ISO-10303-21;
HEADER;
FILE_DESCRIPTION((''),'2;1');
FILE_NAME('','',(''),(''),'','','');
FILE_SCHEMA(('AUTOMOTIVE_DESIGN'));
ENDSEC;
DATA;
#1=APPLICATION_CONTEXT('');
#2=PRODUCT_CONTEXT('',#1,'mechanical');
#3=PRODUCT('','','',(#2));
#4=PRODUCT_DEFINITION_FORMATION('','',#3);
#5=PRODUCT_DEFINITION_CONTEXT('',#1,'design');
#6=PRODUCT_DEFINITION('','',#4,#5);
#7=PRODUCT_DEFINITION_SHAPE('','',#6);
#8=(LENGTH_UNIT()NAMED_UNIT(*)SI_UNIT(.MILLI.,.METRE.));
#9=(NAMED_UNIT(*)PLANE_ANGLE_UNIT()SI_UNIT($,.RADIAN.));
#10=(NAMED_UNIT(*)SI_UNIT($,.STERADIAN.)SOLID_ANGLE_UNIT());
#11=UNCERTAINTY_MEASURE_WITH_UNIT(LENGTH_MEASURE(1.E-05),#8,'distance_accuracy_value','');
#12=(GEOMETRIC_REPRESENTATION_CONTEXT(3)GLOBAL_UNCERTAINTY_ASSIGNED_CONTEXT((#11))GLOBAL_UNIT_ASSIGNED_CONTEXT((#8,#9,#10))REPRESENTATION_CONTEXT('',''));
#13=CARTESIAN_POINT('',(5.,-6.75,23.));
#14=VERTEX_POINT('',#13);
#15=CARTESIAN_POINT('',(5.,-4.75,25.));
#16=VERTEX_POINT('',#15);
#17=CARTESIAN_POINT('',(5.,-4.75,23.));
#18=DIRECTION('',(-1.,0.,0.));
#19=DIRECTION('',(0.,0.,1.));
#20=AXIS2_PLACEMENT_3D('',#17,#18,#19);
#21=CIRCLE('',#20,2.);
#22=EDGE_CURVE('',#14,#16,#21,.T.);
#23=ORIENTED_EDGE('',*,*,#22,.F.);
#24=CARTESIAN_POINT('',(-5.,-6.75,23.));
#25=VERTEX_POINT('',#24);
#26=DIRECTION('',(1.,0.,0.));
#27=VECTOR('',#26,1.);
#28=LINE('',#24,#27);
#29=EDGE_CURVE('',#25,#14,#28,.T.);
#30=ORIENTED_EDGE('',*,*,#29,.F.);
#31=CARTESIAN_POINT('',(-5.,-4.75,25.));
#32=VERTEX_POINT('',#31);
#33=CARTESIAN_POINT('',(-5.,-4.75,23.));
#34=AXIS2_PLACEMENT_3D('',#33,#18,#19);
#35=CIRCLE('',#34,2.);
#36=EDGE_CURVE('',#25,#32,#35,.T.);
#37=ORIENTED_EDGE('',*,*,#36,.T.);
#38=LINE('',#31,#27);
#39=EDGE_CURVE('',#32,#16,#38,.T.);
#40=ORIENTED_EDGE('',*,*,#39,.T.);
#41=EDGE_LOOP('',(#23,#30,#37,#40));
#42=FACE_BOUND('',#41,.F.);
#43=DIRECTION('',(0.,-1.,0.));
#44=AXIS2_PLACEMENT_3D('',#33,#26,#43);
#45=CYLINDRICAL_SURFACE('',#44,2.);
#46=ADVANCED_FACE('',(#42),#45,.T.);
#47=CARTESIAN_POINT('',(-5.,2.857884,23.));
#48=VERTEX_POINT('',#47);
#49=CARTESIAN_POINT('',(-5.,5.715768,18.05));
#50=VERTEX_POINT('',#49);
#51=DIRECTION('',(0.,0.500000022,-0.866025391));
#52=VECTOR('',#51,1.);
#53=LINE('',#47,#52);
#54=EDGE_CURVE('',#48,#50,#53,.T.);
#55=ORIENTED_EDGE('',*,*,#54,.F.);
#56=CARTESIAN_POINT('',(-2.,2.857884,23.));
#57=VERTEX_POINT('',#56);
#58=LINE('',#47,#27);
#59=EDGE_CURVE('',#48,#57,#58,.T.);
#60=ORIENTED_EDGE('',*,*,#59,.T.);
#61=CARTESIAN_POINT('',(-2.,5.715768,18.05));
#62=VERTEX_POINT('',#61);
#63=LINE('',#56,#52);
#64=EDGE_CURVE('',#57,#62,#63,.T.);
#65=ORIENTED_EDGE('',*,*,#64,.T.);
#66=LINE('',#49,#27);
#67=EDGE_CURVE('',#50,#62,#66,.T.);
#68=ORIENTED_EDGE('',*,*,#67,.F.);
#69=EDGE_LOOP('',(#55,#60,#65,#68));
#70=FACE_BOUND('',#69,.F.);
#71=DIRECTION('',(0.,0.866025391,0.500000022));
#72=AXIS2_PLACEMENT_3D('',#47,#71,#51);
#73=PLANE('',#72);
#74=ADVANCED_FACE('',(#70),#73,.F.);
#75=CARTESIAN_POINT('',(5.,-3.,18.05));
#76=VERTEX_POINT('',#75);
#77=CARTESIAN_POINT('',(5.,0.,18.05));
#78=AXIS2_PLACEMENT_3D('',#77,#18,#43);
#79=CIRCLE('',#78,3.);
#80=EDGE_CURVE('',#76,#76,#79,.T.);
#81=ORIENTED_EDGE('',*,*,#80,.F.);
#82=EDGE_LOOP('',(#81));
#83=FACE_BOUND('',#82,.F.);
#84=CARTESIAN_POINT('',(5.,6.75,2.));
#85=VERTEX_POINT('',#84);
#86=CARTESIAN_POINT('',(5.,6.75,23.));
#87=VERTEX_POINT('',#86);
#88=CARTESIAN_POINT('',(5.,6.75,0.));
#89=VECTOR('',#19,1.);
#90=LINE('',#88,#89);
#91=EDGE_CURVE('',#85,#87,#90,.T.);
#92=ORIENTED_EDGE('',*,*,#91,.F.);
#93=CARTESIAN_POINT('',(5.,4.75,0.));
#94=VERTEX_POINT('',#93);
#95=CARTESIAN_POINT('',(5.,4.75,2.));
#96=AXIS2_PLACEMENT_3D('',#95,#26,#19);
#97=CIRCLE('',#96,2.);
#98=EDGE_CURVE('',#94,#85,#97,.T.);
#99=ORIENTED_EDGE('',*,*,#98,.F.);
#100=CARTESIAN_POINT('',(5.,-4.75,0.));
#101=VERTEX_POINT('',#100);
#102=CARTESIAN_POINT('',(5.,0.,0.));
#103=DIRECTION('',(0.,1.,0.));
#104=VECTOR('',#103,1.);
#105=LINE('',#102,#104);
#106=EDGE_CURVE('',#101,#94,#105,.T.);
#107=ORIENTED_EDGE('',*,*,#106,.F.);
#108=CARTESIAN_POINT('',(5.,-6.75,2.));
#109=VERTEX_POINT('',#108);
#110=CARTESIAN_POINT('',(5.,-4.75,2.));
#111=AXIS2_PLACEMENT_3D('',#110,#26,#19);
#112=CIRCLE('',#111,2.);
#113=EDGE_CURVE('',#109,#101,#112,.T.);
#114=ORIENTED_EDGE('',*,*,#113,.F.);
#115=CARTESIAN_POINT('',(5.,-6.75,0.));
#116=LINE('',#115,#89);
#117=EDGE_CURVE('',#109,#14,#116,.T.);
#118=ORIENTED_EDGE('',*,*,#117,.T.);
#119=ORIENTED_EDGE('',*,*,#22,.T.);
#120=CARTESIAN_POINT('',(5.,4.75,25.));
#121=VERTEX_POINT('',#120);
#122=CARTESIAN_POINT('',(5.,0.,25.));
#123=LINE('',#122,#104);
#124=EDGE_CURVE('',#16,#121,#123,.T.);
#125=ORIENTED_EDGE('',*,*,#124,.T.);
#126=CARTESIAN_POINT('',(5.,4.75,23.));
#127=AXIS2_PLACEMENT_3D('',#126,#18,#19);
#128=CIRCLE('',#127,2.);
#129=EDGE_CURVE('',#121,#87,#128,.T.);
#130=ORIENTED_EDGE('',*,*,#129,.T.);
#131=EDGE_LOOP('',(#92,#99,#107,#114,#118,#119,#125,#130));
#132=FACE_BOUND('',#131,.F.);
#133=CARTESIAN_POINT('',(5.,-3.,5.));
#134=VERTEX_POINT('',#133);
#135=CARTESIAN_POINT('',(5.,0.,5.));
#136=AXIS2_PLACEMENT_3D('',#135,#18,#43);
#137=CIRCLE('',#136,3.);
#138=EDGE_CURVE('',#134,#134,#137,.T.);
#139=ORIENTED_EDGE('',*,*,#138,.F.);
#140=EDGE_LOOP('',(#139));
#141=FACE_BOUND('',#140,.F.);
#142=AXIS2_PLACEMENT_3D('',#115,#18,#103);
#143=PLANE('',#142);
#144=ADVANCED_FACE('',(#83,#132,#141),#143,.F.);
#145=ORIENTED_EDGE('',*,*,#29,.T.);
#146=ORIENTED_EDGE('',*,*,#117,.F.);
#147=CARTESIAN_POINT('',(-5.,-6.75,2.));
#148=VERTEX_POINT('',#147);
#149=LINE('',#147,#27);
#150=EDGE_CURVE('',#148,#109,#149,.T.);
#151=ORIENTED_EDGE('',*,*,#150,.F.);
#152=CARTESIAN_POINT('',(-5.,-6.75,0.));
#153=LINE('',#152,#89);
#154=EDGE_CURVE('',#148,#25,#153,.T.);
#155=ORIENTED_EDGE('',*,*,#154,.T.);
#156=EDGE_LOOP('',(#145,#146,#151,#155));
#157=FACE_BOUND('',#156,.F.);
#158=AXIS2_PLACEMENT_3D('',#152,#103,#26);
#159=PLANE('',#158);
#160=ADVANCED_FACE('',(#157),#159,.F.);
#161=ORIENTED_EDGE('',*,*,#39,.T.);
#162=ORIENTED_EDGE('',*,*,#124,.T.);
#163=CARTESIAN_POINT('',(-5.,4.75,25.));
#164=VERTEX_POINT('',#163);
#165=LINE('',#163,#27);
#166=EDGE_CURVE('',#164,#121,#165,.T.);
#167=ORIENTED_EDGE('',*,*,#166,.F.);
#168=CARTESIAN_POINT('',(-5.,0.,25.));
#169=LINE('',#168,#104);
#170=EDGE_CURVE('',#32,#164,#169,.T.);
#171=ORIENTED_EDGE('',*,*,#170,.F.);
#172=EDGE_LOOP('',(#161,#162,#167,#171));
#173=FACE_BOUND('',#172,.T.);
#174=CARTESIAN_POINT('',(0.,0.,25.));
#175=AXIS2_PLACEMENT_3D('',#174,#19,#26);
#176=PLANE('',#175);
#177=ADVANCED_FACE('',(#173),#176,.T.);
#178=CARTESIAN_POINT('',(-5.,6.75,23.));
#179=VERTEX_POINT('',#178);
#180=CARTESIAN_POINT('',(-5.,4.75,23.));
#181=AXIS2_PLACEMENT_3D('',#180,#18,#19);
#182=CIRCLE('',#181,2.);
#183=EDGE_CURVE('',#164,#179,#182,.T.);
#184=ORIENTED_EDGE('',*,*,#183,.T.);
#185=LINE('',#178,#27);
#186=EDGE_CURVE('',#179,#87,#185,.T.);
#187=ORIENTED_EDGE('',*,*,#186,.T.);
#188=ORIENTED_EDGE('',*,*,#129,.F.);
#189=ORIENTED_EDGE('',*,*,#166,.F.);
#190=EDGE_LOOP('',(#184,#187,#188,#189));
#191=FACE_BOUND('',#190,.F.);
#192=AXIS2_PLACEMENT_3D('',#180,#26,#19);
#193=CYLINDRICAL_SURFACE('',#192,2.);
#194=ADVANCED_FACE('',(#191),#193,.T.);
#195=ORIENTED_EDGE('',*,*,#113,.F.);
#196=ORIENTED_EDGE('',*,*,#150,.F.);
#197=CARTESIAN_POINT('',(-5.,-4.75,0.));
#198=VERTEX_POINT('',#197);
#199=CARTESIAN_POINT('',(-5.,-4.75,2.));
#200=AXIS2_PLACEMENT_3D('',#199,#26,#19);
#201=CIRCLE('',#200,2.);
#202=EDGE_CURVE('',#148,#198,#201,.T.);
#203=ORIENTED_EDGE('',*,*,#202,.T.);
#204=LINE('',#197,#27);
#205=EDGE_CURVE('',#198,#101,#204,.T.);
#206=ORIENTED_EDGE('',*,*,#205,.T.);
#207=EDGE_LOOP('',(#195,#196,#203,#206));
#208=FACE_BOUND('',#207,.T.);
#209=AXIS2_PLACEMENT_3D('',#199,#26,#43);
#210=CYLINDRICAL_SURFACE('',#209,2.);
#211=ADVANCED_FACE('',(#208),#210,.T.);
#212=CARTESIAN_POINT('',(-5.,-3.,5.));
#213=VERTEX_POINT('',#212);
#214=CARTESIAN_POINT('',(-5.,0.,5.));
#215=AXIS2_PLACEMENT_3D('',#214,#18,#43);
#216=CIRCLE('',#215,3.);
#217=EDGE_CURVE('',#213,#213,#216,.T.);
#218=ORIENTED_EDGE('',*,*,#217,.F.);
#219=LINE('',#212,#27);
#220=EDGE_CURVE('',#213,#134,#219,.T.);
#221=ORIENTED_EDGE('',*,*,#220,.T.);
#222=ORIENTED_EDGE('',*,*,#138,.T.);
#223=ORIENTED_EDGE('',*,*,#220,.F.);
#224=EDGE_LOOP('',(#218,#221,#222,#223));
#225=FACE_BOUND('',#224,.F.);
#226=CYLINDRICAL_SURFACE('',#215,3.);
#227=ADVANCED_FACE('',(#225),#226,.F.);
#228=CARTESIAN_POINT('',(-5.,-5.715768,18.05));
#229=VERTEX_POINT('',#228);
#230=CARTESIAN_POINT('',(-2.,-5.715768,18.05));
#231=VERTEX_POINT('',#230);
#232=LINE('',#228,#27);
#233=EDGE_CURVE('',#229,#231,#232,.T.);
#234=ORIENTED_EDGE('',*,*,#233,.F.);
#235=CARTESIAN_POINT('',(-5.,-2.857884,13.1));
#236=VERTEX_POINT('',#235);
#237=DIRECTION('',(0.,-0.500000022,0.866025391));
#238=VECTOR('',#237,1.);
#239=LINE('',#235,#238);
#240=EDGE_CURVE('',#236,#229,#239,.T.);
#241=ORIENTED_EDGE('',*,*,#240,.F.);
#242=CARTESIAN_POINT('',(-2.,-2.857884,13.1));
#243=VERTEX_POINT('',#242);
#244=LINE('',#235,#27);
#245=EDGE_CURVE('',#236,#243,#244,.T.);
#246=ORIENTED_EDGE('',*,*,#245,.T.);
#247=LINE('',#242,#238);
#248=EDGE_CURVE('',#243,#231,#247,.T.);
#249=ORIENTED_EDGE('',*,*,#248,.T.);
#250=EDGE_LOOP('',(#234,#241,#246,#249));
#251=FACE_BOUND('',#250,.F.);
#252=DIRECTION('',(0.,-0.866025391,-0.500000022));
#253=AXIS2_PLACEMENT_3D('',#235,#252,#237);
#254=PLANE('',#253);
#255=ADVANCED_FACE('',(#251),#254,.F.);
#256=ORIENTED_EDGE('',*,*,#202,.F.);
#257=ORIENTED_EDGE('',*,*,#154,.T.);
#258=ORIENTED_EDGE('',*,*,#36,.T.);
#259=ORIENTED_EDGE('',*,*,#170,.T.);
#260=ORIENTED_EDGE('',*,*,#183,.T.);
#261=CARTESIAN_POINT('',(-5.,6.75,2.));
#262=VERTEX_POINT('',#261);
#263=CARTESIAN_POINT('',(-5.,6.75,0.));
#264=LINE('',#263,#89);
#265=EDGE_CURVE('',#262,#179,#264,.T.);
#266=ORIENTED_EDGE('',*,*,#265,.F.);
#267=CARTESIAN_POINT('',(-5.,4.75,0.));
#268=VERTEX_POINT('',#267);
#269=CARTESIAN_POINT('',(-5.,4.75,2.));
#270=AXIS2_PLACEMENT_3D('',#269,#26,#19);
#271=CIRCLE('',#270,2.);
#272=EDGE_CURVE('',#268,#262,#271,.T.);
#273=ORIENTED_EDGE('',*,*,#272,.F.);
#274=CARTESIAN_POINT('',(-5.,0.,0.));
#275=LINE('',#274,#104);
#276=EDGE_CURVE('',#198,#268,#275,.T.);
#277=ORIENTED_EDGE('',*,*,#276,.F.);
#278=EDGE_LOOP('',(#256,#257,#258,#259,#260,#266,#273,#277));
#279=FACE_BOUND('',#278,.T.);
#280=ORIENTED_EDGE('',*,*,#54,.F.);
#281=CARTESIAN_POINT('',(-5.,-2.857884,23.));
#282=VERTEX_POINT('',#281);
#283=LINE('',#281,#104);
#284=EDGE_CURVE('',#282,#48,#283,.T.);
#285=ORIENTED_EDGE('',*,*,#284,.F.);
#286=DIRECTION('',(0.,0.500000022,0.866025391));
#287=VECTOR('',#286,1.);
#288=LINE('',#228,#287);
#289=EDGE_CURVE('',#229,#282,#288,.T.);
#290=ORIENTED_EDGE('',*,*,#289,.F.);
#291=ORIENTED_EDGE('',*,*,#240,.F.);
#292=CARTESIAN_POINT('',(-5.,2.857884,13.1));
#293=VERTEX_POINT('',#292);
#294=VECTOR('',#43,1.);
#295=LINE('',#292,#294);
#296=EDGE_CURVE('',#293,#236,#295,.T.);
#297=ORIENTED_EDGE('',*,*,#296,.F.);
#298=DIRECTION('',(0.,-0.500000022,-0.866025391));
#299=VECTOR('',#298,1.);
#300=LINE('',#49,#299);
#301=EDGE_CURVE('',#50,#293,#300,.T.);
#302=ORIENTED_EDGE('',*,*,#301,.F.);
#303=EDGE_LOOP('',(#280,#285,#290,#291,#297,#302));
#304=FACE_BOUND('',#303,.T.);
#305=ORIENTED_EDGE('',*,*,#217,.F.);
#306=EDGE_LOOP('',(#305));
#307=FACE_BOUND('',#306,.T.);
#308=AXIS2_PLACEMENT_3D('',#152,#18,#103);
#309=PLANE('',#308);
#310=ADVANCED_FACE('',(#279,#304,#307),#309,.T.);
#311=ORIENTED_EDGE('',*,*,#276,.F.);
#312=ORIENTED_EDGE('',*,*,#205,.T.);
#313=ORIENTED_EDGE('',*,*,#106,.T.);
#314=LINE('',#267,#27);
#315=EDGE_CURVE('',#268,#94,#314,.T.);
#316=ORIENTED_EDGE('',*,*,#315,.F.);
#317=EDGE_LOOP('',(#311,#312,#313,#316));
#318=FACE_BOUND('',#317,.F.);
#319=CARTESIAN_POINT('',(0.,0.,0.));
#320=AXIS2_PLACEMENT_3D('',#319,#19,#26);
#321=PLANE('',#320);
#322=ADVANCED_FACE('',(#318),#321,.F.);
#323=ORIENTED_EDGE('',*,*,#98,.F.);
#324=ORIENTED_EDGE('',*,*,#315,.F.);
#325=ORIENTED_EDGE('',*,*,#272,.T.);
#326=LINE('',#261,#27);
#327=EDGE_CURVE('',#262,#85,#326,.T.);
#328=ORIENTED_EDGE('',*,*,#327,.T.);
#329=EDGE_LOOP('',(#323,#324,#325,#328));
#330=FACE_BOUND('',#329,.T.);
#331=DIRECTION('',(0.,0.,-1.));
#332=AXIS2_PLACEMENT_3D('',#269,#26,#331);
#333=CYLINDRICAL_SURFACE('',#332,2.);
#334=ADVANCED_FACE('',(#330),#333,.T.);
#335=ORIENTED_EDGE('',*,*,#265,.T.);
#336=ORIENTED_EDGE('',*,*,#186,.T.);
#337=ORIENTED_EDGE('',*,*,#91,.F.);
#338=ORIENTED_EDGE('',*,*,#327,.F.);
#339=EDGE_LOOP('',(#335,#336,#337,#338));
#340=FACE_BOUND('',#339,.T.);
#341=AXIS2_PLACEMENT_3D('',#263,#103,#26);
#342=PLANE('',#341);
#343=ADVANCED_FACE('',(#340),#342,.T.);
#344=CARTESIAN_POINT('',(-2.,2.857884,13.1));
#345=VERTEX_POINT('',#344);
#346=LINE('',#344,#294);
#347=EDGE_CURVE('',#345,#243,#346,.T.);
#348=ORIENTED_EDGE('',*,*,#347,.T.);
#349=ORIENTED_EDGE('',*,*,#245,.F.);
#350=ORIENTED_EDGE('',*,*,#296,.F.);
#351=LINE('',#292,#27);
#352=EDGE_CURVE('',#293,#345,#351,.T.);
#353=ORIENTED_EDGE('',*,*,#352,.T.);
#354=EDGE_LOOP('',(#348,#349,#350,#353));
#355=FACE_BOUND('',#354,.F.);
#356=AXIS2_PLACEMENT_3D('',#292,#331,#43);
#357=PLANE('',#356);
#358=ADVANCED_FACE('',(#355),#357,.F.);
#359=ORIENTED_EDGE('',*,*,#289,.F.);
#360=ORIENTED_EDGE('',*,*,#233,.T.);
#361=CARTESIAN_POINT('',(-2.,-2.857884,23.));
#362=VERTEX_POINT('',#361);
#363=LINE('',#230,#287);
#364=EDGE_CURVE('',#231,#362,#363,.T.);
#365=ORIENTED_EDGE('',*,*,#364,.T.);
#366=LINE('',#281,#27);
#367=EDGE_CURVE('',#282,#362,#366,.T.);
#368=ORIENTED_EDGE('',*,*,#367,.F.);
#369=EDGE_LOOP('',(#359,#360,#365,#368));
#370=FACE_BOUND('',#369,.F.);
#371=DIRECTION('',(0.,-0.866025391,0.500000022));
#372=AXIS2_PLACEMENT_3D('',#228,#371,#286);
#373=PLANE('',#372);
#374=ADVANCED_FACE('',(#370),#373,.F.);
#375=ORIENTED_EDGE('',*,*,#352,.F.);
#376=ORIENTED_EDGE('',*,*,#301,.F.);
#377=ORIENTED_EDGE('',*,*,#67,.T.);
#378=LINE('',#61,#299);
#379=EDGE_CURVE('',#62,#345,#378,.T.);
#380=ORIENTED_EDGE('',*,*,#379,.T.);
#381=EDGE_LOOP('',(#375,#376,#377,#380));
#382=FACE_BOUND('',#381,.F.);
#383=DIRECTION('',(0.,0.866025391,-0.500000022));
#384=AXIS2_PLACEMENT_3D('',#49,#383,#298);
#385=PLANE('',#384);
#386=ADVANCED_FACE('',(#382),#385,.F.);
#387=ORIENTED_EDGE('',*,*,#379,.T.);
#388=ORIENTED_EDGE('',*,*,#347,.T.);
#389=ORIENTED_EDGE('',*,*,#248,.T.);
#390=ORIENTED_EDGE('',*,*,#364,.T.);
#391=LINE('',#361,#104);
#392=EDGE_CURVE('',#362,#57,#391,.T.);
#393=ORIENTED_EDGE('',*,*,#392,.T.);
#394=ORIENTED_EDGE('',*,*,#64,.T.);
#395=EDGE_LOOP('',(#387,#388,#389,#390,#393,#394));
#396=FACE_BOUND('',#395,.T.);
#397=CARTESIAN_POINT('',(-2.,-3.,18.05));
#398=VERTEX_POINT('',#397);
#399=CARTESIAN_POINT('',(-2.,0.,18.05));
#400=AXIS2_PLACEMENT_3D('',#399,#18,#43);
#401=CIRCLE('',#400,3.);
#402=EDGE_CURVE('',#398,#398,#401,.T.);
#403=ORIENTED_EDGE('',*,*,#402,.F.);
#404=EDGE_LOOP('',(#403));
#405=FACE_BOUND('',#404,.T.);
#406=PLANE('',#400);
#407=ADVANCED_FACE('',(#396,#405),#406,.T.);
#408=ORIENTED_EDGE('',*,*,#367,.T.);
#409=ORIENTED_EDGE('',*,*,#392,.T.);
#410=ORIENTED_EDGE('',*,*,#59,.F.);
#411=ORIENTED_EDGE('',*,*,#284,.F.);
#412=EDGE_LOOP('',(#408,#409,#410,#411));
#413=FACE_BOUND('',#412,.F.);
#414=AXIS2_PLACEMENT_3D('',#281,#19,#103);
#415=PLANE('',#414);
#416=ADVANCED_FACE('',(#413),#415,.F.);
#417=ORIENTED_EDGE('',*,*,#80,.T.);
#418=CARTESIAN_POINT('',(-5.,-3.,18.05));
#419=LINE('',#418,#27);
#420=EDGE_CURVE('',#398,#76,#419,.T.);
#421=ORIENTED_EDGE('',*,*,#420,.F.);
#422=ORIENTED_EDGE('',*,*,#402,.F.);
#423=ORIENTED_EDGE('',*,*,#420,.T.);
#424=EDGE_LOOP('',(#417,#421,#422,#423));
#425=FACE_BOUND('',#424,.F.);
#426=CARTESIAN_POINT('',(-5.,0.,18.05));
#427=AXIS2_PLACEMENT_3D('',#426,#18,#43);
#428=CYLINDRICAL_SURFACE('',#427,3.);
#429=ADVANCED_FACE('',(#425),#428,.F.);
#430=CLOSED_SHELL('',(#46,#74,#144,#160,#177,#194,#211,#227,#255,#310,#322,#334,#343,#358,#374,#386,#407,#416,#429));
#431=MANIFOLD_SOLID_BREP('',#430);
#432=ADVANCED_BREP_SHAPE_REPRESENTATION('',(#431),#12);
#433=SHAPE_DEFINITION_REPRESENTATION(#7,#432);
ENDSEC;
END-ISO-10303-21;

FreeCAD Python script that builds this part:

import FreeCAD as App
import Part
import Sketcher

V = App.Vector
Q = App.Units.Quantity


def edges_at(feature, points):
    """Names of the edges that pass closest to the given points."""
    edges = feature.Shape.Edges
    near = lambda p: min(range(len(edges)), key=lambda i: edges[i].distToShape(Part.Vertex(*p))[0])
    return sorted({f"Edge{near(p) + 1}" for p in points})

doc = App.newDocument("Part")
body = doc.addObject("PartDesign::Body", "Body")

# Sketch on XY plane
sketch1 = body.newObject("Sketcher::SketchObject", "Sketch")
sketch1.AttachmentSupport = (doc.getObject("XY_Plane"), [""])
sketch1.MapMode = "FlatFace"
sketch1.addGeometry(Part.LineSegment(V(-5, 7, 0), V(-5, -7, 0)), False)
sketch1.addGeometry(Part.LineSegment(V(-5, -7, 0), V(5, -7, 0)), False)
sketch1.addGeometry(Part.LineSegment(V(5, -7, 0), V(5, 7, 0)), False)
sketch1.addGeometry(Part.LineSegment(V(5, 7, 0), V(-5, 7, 0)), False)
sketch1.addConstraint(Sketcher.Constraint("Coincident", 0, 2, 1, 1))
sketch1.addConstraint(Sketcher.Constraint("Coincident", 1, 2, 2, 1))
sketch1.addConstraint(Sketcher.Constraint("Coincident", 2, 2, 3, 1))
sketch1.addConstraint(Sketcher.Constraint("Coincident", 3, 2, 0, 1))
sketch1.addConstraint(Sketcher.Constraint("Vertical", 0))
sketch1.addConstraint(Sketcher.Constraint("Horizontal", 1))
sketch1.addConstraint(Sketcher.Constraint("Vertical", 2))
sketch1.addConstraint(Sketcher.Constraint("Horizontal", 3))
sketch1.addConstraint(Sketcher.Constraint("Symmetric", 0, 2, 2, 2, -1, 1))
sketch1.addConstraint(Sketcher.Constraint("DistanceX", 1, 1, 1, 2, 10.0))
sketch1.addConstraint(Sketcher.Constraint("DistanceY", 0, 2, 0, 1, 13.5))
pad1 = body.newObject("PartDesign::Pad", "Pad")
pad1.Profile = sketch1
pad1.Length = 25

# Sketch on YZ plane
sketch2 = body.newObject("Sketcher::SketchObject", "Sketch001")
sketch2.AttachmentSupport = (doc.getObject("YZ_Plane"), [""])
sketch2.MapMode = "FlatFace"
sketch2.AttachmentOffset = App.Placement(V(0, 0, -5), App.Rotation())
sketch2.addGeometry(Part.LineSegment(V(-2.9, 23, 0), V(2.9, 23, 0)), False)
sketch2.addGeometry(Part.LineSegment(V(2.9, 23, 0), V(5.7, 18.1, 0)), False)
sketch2.addGeometry(Part.LineSegment(V(5.7, 18.1, 0), V(2.9, 13.1, 0)), False)
sketch2.addGeometry(Part.LineSegment(V(2.9, 13.1, 0), V(-2.9, 13.1, 0)), False)
sketch2.addGeometry(Part.LineSegment(V(-2.9, 13.1, 0), V(-5.7, 18.1, 0)), False)
sketch2.addGeometry(Part.LineSegment(V(-5.7, 18.1, 0), V(-2.9, 23, 0)), False)
sketch2.addGeometry(Part.Circle(V(0, 18.1, 0), V(0, 0, 1), 3), False)
sketch2.addConstraint(Sketcher.Constraint("Coincident", 0, 2, 1, 1))
sketch2.addConstraint(Sketcher.Constraint("Coincident", 1, 2, 2, 1))
sketch2.addConstraint(Sketcher.Constraint("Coincident", 2, 2, 3, 1))
sketch2.addConstraint(Sketcher.Constraint("Coincident", 3, 2, 4, 1))
sketch2.addConstraint(Sketcher.Constraint("Coincident", 4, 2, 5, 1))
sketch2.addConstraint(Sketcher.Constraint("Coincident", 5, 2, 0, 1))
sketch2.addConstraint(Sketcher.Constraint("Horizontal", 0))
sketch2.addConstraint(Sketcher.Constraint("Horizontal", 3))
sketch2.addConstraint(Sketcher.Constraint("Symmetric", 1, 2, 4, 2, -2))
sketch2.addConstraint(Sketcher.Constraint("PointOnObject", 6, 3, -2))
sketch2.addConstraint(Sketcher.Constraint("Parallel", 1, 4))
sketch2.addConstraint(Sketcher.Constraint("Parallel", 2, 5))
sketch2.addConstraint(Sketcher.Constraint("Horizontal", 6, 3, 1, 2))
sketch2.addConstraint(Sketcher.Constraint("Vertical", 0, 2, 2, 2))
sketch2.addConstraint(Sketcher.Constraint("Vertical", 3, 2, 5, 2))
sketch2.addConstraint(Sketcher.Constraint("Diameter", 6, 6.0))
sketch2.addConstraint(Sketcher.Constraint("Angle", 1, Q("-59.999999 deg")))
sketch2.addConstraint(Sketcher.Constraint("DistanceY", -1, 1, 0, 2, 23.0))
sketch2.addConstraint(Sketcher.Constraint("DistanceY", -1, 1, 2, 2, 13.1))
sketch2.addConstraint(Sketcher.Constraint("DistanceX", 0, 1, 0, 2, 5.715768))
pocket1 = body.newObject("PartDesign::Pocket", "Pocket")
pocket1.Profile = sketch2
pocket1.Length = 3
pocket1.Reversed = True

# Sketch on YZ plane
sketch3 = body.newObject("Sketcher::SketchObject", "Sketch002")
sketch3.AttachmentSupport = (doc.getObject("YZ_Plane"), [""])
sketch3.MapMode = "FlatFace"
sketch3.AttachmentOffset = App.Placement(V(0, 0, -5), App.Rotation())
sketch3.addGeometry(Part.Circle(V(0, 5, 0), V(0, 0, 1), 3), False)
sketch3.addGeometry(Part.Circle(V(0, 18.1, 0), V(0, 0, 1), 3), False)
sketch3.addConstraint(Sketcher.Constraint("Equal", 0, 1))
sketch3.addConstraint(Sketcher.Constraint("PointOnObject", 0, 3, -2))
sketch3.addConstraint(Sketcher.Constraint("PointOnObject", 1, 3, -2))
sketch3.addConstraint(Sketcher.Constraint("Diameter", 0, 6.0))
sketch3.addConstraint(Sketcher.Constraint("DistanceY", -1, 1, 0, 3, 5.0))
sketch3.addConstraint(Sketcher.Constraint("DistanceY", -1, 1, 1, 3, 18.05))
pocket2 = body.newObject("PartDesign::Pocket", "Pocket001")
pocket2.Profile = sketch3
pocket2.Length = 25
pocket2.Reversed = True
doc.recompute()

fillet = body.newObject("PartDesign::Fillet", "Fillet")
fillet.Base = (pocket2, edges_at(pocket2, [
    (0, -6.75, 25),
    (0, 6.75, 25),
    (0, -6.75, 0),
    (0, 6.75, 0),
]))
fillet.Radius = 2

doc.recompute()
